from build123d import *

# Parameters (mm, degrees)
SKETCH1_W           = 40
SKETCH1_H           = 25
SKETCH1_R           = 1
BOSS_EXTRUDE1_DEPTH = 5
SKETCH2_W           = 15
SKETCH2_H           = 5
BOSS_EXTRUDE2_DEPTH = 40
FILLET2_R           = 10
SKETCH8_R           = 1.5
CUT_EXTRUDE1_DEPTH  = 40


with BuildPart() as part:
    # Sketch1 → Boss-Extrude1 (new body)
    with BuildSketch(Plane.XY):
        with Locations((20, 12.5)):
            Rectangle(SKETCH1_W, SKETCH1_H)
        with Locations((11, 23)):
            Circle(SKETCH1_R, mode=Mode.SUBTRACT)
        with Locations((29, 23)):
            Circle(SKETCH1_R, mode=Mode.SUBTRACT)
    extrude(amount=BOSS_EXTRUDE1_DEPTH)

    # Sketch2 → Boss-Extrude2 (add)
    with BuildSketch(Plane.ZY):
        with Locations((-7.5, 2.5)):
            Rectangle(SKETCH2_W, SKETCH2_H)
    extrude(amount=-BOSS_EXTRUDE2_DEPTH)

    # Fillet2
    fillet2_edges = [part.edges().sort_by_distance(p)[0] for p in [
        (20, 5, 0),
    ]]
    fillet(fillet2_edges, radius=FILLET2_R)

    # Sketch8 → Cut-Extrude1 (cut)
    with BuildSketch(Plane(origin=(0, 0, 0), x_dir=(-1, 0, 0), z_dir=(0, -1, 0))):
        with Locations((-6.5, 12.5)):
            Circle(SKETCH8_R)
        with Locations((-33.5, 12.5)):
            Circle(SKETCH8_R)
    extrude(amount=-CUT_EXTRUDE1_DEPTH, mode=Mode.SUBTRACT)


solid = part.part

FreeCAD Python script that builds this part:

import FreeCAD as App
import Part
import Sketcher
from FreeCAD import Vector


def edges_at(feature, points):
    """Names of the edges that pass closest to the given points."""
    edges = feature.Shape.Edges
    near = lambda p: min(range(len(edges)), key=lambda i: edges[i].distToShape(Part.Vertex(*p))[0])
    return sorted({f"Edge{near(p) + 1}" for p in points})


def add_polygon(sketch, points):
    """Adds a closed chain of lines whose ends are joined by coincident constraints."""
    first, n = sketch.GeometryCount, len(points)
    for a, b in zip(points, points[1:] + points[:1]):
        sketch.addGeometry(Part.LineSegment(App.Vector(*a, 0), App.Vector(*b, 0)), False)
    for i in range(n):
        sketch.addConstraint(Sketcher.Constraint("Coincident", first + i, 2, first + (i + 1) % n, 1))

doc = App.newDocument("Part")
body = doc.addObject("PartDesign::Body", "Body")

# Sketch on XY plane
sketch1 = body.newObject("Sketcher::SketchObject", "Sketch")
sketch1.AttachmentSupport = (doc.getObject("XY_Plane"), [""])
sketch1.MapMode = "FlatFace"
add_polygon(sketch1, [(0, 25), (0, 0), (40, 0), (40, 25)])  # lines 0-3
sketch1.addGeometry(Part.Circle(Vector(11, 23, 0), Vector(0, 0, 1), 1), False)  # 4
sketch1.addGeometry(Part.Circle(Vector(29, 23, 0), Vector(0, 0, 1), 1), False)  # 5
sketch1.addConstraint([
    Sketcher.Constraint("Vertical", 0),
    Sketcher.Constraint("Horizontal", 1),
    Sketcher.Constraint("Vertical", 2),
    Sketcher.Constraint("Horizontal", 3),
    Sketcher.Constraint("Coincident", 0, 2, -1, 1),
    Sketcher.Constraint("Equal", 4, 5),
    Sketcher.Constraint("Horizontal", 4, 3, 5, 3),
    Sketcher.Constraint("Diameter", 4, 2.0),
    Sketcher.Constraint("DistanceX", 1, 1, 1, 2, 40.0),
    Sketcher.Constraint("DistanceY", 0, 2, 0, 1, 25.0),
    Sketcher.Constraint("DistanceX", -1, 1, 4, 3, 11.0),
    Sketcher.Constraint("DistanceY", -1, 1, 4, 3, 23.0),
    Sketcher.Constraint("DistanceX", -1, 1, 5, 3, 29.0),
])
pad1 = body.newObject("PartDesign::Pad", "Pad")
pad1.Profile = sketch1
pad1.Length = 5

# Sketch on YZ plane
sketch2 = body.newObject("Sketcher::SketchObject", "Sketch001")
sketch2.AttachmentSupport = (doc.getObject("YZ_Plane"), [""])
sketch2.MapMode = "FlatFace"
add_polygon(sketch2, [(5, -15), (0, -15), (0, 0), (5, 0)])  # lines 0-3
sketch2.addConstraint([
    Sketcher.Constraint("Horizontal", 0),
    Sketcher.Constraint("Vertical", 1),
    Sketcher.Constraint("Horizontal", 2),
    Sketcher.Constraint("Vertical", 3),
    Sketcher.Constraint("Coincident", 1, 2, -1, 1),
    Sketcher.Constraint("DistanceX", 0, 2, 0, 1, 5.0),
    Sketcher.Constraint("DistanceY", 1, 1, 1, 2, 15.0),
])
pad2 = body.newObject("PartDesign::Pad", "Pad001")
pad2.Profile = sketch2
pad2.Length = 40
doc.recompute()

fillet = body.newObject("PartDesign::Fillet", "Fillet")
fillet.Base = (pad2, edges_at(pad2, [(20, 5, 0)]))
fillet.Radius = 10

# Sketch on XZ plane
sketch3 = body.newObject("Sketcher::SketchObject", "Sketch002")
sketch3.AttachmentSupport = (doc.getObject("XZ_Plane"), [""])
sketch3.MapMode = "FlatFace"
sketch3.addGeometry([
    Part.Circle(Vector(6.5, -12.5, 0), Vector(0, 0, 1), 1.5),
    Part.Circle(Vector(33.5, -12.5, 0), Vector(0, 0, 1), 1.5),
], False)
sketch3.addConstraint([
    Sketcher.Constraint("Equal", 0, 1),
    Sketcher.Constraint("Horizontal", 0, 3, 1, 3),
    Sketcher.Constraint("Diameter", 0, 3.0),
    Sketcher.Constraint("DistanceX", 0, 3, 1, 3, 27.0),
    Sketcher.Constraint("DistanceX", -1, 1, 0, 3, 6.5),
    Sketcher.Constraint("DistanceY", 0, 3, -1, 1, 12.5),
])
pocket1 = body.newObject("PartDesign::Pocket", "Pocket")
pocket1.Profile = sketch3
pocket1.Length = 40

doc.recompute()
